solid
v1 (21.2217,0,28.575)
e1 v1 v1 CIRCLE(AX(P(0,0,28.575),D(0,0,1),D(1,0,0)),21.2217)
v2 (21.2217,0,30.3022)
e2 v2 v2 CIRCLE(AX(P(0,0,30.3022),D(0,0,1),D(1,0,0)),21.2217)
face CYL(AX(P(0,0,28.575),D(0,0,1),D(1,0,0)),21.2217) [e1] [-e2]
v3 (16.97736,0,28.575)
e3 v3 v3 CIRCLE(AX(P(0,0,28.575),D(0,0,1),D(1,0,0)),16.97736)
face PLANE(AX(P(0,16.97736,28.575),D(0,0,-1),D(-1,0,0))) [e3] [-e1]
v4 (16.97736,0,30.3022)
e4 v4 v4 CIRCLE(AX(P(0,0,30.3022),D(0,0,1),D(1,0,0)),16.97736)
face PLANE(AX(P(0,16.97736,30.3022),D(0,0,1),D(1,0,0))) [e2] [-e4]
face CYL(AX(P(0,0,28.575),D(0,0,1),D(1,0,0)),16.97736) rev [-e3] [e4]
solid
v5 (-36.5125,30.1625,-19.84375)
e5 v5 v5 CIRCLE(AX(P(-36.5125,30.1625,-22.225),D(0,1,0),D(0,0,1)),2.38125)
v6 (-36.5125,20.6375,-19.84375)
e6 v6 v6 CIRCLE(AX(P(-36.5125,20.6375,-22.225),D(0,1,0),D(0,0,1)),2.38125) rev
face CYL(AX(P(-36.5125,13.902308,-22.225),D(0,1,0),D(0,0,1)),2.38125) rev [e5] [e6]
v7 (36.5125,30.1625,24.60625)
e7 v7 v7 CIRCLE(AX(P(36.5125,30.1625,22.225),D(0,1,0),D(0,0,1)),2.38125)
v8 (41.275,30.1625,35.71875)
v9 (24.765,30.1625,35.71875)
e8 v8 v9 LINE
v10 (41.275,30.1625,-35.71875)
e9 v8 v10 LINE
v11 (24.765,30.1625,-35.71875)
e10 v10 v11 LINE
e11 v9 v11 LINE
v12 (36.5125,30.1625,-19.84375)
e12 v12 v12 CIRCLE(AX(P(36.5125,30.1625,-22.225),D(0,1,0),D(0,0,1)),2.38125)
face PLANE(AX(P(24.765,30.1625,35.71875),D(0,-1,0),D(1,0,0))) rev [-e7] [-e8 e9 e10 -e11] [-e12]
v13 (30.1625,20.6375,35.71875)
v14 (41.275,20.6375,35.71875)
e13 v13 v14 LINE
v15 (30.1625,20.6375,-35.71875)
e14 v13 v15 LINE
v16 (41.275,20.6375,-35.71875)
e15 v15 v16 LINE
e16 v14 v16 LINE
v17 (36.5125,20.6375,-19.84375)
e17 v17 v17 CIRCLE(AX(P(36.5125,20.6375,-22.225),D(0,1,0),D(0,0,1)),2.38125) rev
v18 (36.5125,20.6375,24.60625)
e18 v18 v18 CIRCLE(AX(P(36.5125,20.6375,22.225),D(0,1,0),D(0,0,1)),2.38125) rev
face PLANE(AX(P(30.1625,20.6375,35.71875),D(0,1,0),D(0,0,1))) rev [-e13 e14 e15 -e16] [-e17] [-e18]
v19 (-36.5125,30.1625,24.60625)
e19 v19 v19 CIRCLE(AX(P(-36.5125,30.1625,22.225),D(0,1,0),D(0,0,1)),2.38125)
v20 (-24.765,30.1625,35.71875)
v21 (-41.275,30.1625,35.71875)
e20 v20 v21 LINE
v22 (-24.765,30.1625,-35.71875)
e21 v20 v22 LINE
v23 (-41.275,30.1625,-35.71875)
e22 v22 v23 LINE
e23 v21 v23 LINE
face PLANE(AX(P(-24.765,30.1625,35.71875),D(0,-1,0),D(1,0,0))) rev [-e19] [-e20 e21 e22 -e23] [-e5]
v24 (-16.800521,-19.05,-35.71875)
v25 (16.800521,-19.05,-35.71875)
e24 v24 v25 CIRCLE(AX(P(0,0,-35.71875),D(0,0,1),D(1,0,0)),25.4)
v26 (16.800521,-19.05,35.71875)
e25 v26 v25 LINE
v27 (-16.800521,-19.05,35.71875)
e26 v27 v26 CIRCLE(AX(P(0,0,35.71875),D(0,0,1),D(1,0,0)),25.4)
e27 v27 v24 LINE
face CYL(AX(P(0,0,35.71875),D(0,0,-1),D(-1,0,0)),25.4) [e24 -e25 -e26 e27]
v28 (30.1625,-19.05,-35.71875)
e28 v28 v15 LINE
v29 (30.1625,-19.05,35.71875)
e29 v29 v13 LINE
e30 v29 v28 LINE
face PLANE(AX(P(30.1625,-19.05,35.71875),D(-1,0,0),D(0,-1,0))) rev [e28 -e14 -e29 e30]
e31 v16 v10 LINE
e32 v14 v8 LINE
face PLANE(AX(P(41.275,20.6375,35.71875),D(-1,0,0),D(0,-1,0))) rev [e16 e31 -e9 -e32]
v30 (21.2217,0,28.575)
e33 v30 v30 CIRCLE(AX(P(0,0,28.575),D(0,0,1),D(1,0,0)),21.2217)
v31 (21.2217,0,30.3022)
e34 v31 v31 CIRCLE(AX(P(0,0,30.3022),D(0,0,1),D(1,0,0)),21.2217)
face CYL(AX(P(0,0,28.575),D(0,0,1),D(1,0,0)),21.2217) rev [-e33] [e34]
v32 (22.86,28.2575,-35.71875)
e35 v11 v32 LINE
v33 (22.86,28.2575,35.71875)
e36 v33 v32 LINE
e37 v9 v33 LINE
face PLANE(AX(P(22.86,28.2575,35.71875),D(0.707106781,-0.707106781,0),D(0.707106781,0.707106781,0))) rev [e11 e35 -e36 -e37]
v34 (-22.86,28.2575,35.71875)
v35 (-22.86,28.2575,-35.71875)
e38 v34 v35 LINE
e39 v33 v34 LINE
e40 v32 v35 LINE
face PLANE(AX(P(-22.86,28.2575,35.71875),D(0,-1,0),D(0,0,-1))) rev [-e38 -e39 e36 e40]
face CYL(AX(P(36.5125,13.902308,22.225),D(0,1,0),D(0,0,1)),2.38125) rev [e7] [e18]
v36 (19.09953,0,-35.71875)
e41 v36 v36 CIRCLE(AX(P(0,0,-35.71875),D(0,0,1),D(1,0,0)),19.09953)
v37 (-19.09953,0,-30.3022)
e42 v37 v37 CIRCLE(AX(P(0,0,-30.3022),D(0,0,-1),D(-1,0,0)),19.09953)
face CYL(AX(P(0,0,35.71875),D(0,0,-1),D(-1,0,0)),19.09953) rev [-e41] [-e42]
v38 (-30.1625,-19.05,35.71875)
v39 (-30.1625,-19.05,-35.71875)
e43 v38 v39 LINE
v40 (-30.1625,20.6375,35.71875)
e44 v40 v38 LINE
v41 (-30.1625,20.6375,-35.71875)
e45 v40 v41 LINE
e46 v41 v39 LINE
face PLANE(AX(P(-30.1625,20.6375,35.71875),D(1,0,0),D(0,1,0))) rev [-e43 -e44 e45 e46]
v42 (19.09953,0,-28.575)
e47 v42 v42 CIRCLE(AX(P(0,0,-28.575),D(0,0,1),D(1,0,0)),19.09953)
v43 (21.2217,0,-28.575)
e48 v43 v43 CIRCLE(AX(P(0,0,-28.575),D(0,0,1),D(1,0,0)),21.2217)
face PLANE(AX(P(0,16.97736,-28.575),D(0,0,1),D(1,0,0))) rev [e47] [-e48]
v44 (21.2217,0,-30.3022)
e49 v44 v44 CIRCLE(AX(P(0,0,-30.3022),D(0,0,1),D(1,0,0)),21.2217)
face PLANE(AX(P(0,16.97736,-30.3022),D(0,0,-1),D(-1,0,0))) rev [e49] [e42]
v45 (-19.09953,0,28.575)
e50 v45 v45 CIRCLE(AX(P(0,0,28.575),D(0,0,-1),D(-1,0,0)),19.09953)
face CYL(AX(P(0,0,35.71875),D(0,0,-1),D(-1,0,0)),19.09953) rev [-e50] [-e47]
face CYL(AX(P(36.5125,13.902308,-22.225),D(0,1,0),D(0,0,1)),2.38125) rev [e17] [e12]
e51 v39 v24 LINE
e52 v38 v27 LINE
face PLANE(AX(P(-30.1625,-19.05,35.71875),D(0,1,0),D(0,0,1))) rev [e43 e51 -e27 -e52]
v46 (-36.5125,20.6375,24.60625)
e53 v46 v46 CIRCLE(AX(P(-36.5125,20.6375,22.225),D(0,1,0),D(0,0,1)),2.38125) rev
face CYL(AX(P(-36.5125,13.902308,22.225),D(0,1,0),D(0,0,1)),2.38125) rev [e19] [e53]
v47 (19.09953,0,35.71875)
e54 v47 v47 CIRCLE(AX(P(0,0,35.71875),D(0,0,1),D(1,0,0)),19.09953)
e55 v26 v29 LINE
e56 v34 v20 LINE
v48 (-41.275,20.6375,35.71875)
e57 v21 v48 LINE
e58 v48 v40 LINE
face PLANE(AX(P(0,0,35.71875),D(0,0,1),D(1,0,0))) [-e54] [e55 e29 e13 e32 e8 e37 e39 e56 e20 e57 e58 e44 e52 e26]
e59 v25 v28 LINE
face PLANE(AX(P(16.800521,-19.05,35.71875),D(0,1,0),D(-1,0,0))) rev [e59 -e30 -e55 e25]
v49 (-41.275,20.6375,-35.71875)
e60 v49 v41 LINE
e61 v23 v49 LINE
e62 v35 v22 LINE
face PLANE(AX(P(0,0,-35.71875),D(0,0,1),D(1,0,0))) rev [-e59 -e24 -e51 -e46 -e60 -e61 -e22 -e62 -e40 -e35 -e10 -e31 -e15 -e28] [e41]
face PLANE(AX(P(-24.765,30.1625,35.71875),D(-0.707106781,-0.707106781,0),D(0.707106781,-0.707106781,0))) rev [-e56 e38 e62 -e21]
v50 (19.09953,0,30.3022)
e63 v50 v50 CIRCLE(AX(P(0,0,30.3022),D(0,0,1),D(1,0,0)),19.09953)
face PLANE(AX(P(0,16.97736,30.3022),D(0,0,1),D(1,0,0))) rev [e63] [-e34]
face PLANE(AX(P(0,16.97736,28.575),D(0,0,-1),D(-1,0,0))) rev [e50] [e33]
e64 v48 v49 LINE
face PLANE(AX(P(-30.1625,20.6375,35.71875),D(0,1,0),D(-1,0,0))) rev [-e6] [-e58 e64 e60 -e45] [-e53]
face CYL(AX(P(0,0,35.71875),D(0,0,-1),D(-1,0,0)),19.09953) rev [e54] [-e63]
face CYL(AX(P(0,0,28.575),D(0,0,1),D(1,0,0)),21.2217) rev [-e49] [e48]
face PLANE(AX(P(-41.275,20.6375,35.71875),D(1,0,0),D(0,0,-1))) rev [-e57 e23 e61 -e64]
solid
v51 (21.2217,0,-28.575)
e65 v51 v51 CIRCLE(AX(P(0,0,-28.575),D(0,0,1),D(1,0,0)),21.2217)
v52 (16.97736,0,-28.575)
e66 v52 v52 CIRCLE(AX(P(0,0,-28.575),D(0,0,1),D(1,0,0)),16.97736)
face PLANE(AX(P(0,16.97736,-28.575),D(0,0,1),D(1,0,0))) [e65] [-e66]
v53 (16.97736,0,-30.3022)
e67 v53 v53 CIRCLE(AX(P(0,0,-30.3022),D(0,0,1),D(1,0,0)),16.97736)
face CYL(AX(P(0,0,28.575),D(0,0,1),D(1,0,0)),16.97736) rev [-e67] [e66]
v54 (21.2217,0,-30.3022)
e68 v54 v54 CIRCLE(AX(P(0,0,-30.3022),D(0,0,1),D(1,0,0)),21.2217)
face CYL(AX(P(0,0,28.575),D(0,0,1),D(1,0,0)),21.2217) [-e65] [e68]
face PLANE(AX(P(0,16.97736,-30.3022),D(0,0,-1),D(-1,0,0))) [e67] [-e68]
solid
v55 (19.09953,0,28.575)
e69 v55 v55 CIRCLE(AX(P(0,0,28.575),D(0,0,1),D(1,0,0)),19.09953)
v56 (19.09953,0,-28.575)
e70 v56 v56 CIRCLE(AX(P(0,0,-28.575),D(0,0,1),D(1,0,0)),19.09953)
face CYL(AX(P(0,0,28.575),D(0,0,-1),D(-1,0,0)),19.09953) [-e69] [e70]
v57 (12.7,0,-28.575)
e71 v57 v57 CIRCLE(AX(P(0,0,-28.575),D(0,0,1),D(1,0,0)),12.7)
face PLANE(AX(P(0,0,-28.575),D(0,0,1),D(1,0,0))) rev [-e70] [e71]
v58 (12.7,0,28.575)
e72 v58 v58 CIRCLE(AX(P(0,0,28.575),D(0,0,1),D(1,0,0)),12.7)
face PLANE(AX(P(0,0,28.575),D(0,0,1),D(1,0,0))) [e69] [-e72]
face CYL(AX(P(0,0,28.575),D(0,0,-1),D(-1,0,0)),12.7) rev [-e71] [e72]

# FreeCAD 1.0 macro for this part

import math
import FreeCAD as App
import Part
import Sketcher

V = App.Vector
Q = App.Units.Quantity


def add_polygon(sketch, points):
    """Adds a closed chain of lines whose ends are joined by coincident constraints."""
    first, n = sketch.GeometryCount, len(points)
    for a, b in zip(points, points[1:] + points[:1]):
        sketch.addGeometry(Part.LineSegment(App.Vector(*a, 0), App.Vector(*b, 0)), False)
    for i in range(n):
        sketch.addConstraint(Sketcher.Constraint("Coincident", first + i, 2, first + (i + 1) % n, 1))

doc = App.newDocument("Part")
body = doc.addObject("PartDesign::Body", "Body")

# Sketch on XY plane
sketch1 = doc.addObject("Sketcher::SketchObject", "Sketch")
body.addObject(sketch1)
sketch1.AttachmentSupport = (doc.XY_Plane, [""])
sketch1.MapMode = "FlatFace"
sketch1.addGeometry([
    Part.LineSegment(V(-41.275, 20.6375, 0), V(-30.1625, 20.6375, 0)),  # 0
    Part.LineSegment(V(-30.1625, 20.6375, 0), V(-30.1625, -19.05, 0)),  # 1
    Part.LineSegment(V(-30.1625, -19.05, 0), V(-16.800521, -19.05, 0)),  # 2
    Part.ArcOfCircle(Part.Circle(V(0, 0, 0), V(0, 0, 1), 25.4), math.radians(-131.409622), math.radians(-48.590378)),  # 3
    Part.LineSegment(V(16.800521, -19.05, 0), V(30.1625, -19.05, 0)),  # 4
    Part.LineSegment(V(30.1625, -19.05, 0), V(30.1625, 20.6375, 0)),  # 5
    Part.LineSegment(V(30.1625, 20.6375, 0), V(41.275, 20.6375, 0)),  # 6
    Part.LineSegment(V(41.275, 20.6375, 0), V(41.275, 30.1625, 0)),  # 7
    Part.LineSegment(V(41.275, 30.1625, 0), V(24.765, 30.1625, 0)),  # 8
    Part.LineSegment(V(24.765, 30.1625, 0), V(22.86, 28.2575, 0)),  # 9
    Part.LineSegment(V(22.86, 28.2575, 0), V(-22.86, 28.2575, 0)),  # 10
    Part.LineSegment(V(-22.86, 28.2575, 0), V(-24.765, 30.1625, 0)),  # 11
    Part.LineSegment(V(-24.765, 30.1625, 0), V(-41.275, 30.1625, 0)),  # 12
    Part.LineSegment(V(-41.275, 30.1625, 0), V(-41.275, 20.6375, 0)),  # 13
    Part.Circle(V(0, 0, 0), V(0, 0, 1), 19.09953),  # 14
], False)
sketch1.addConstraint([
    Sketcher.Constraint("Coincident", 0, 2, 1, 1),
    Sketcher.Constraint("Coincident", 1, 2, 2, 1),
    Sketcher.Constraint("Coincident", 2, 2, 3, 1),
    Sketcher.Constraint("Coincident", 3, 2, 4, 1),
    Sketcher.Constraint("Coincident", 4, 2, 5, 1),
    Sketcher.Constraint("Coincident", 5, 2, 6, 1),
    Sketcher.Constraint("Coincident", 6, 2, 7, 1),
    Sketcher.Constraint("Coincident", 7, 2, 8, 1),
    Sketcher.Constraint("Coincident", 8, 2, 9, 1),
    Sketcher.Constraint("Coincident", 9, 2, 10, 1),
    Sketcher.Constraint("Coincident", 10, 2, 11, 1),
    Sketcher.Constraint("Coincident", 11, 2, 12, 1),
    Sketcher.Constraint("Coincident", 12, 2, 13, 1),
    Sketcher.Constraint("Coincident", 13, 2, 0, 1),
    Sketcher.Constraint("Horizontal", 0),
    Sketcher.Constraint("Vertical", 1),
    Sketcher.Constraint("Horizontal", 2),
    Sketcher.Constraint("Horizontal", 4),
    Sketcher.Constraint("Vertical", 5),
    Sketcher.Constraint("Horizontal", 6),
    Sketcher.Constraint("Vertical", 7),
    Sketcher.Constraint("Horizontal", 8),
    Sketcher.Constraint("Horizontal", 10),
    Sketcher.Constraint("Horizontal", 12),
    Sketcher.Constraint("Vertical", 13),
    Sketcher.Constraint("Coincident", 3, 3, -1, 1),
    Sketcher.Constraint("Coincident", 14, 3, -1, 1),
    Sketcher.Constraint("Symmetric", 1, 2, 4, 2, -2),
    Sketcher.Constraint("Symmetric", 8, 2, 11, 2, -2),
    Sketcher.Constraint("Symmetric", 6, 2, 13, 2, -2),
    Sketcher.Constraint("Perpendicular", 9, 11),
    Sketcher.Constraint("Equal", 9, 11),
    Sketcher.Constraint("Radius", 3, Q("1 in")),
    Sketcher.Constraint("DistanceX", 10, 2, 10, 1, Q("1.8 in")),
    Sketcher.Constraint("Diameter", 14, Q("1.5039 in")),
    Sketcher.Constraint("DistanceX", 8, 2, 8, 1, Q("0.65 in")),
    Sketcher.Constraint("DistanceY", 5, 2, 9, 2, Q("0.3 in")),
    Sketcher.Constraint("DistanceX", 0, 1, 0, 2, Q("0.4375 in")),
    Sketcher.Constraint("DistanceY", 1, 2, 1, 1, Q("1.5625 in")),
    Sketcher.Constraint("DistanceY", 7, 1, 7, 2, Q("0.375 in")),
    Sketcher.Constraint("DistanceY", 1, 2, -1, 1, Q("0.75 in")),
])
pad1 = doc.addObject("PartDesign::Pad", "Pad")
body.addObject(pad1)
pad1.Profile = sketch1
pad1.Length = Q("2.8125 in")
pad1.Midplane = True

# Sketch on XZ plane
sketch2 = doc.addObject("Sketcher::SketchObject", "Sketch001")
body.addObject(sketch2)
sketch2.AttachmentSupport = (doc.XZ_Plane, [""])
sketch2.MapMode = "FlatFace"
sketch2.AttachmentOffset = App.Placement(V(0, 0, -1.1875 * 25.4), App.Rotation())
sketch2.addGeometry([
    Part.Circle(V(-36.5125, -22.225, 0), V(0, 0, 1), 2.38125),
    Part.Circle(V(36.5125, -22.225, 0), V(0, 0, 1), 2.38125),
    Part.Circle(V(36.5125, 22.225, 0), V(0, 0, 1), 2.38125),
    Part.Circle(V(-36.5125, 22.225, 0), V(0, 0, 1), 2.38125),
], False)
sketch2.addConstraint([
    Sketcher.Constraint("Equal", 0, 1),
    Sketcher.Constraint("Equal", 1, 2),
    Sketcher.Constraint("Equal", 2, 3),
    Sketcher.Constraint("Symmetric", 0, 3, 2, 3, -1, 1),
    Sketcher.Constraint("Symmetric", 1, 3, 3, 3, -1, 1),
    Sketcher.Constraint("Symmetric", 0, 3, 1, 3, -2),
    Sketcher.Constraint("Diameter", 0, Q("0.1875 in")),
    Sketcher.Constraint("DistanceY", 1, 3, 2, 3, Q("1.75 in")),
    Sketcher.Constraint("DistanceX", 0, 3, -1, 1, Q("1.4375 in")),
])
pocket1 = doc.addObject("PartDesign::Pocket", "Pocket")
body.addObject(pocket1)
pocket1.Profile = sketch2
pocket1.Length = Q("0.375 in")
pocket1.Reversed = True

# Sketch on YZ plane
sketch3 = doc.addObject("Sketcher::SketchObject", "Sketch002")
body.addObject(sketch3)
sketch3.AttachmentSupport = (doc.YZ_Plane, [""])
sketch3.MapMode = "FlatFace"
add_polygon(sketch3, [(-16.97736, -28.575), (-21.2217, -28.575), (-21.2217, -30.3022), (-16.97736, -30.3022)])  # lines 0-3
add_polygon(sketch3, [(-16.97736, 30.3022), (-21.2217, 30.3022), (-21.2217, 28.575), (-16.97736, 28.575)])  # lines 4-7
sketch3.addConstraint([
    Sketcher.Constraint("Horizontal", 0),
    Sketcher.Constraint("Vertical", 1),
    Sketcher.Constraint("Horizontal", 2),
    Sketcher.Constraint("Vertical", 3),
    Sketcher.Constraint("Horizontal", 4),
    Sketcher.Constraint("Vertical", 5),
    Sketcher.Constraint("Horizontal", 6),
    Sketcher.Constraint("Vertical", 7),
    Sketcher.Constraint("Symmetric", 1, 2, 4, 2, -1),
    Sketcher.Constraint("Symmetric", 3, 2, 6, 2, -1),
    Sketcher.Constraint("DistanceY", 1, 2, 1, 1, Q("0.068 in")),
    Sketcher.Constraint("DistanceY", 0, 2, 5, 2, Q("2.25 in")),
    Sketcher.Constraint("DistanceX", 0, 2, 0, 1, Q("0.1671 in")),
    Sketcher.Constraint("DistanceX", 0, 2, -1, 1, Q("0.8355 in")),
])
groove = doc.addObject("PartDesign::Groove", "Groove")
body.addObject(groove)
groove.Profile = sketch3
groove.ReferenceAxis = (sketch3, ["V_Axis"])
groove.Angle = 360
body2 = doc.addObject("PartDesign::Body", "Body001")

# Sketch on XY plane
sketch4 = doc.addObject("Sketcher::SketchObject", "Sketch003")
body2.addObject(sketch4)
sketch4.AttachmentSupport = (doc.getObject("XY_Plane001"), [""])
sketch4.MapMode = "FlatFace"
sketch4.addGeometry([
    Part.Circle(V(0, 0, 0), V(0, 0, 1), 19.09953),
    Part.Circle(V(0, 0, 0), V(0, 0, 1), 12.7),
], False)
sketch4.addConstraint([
    Sketcher.Constraint("Coincident", 0, 3, -1, 1),
    Sketcher.Constraint("Coincident", 1, 3, -1, 1),
    Sketcher.Constraint("Diameter", 1, Q("1 in")),
    Sketcher.Constraint("Diameter", 0, Q("1.5039 in")),
])
pad2 = doc.addObject("PartDesign::Pad", "Pad001")
body2.addObject(pad2)
pad2.Profile = sketch4
pad2.Length = Q("2.25 in")
pad2.Midplane = True
body3 = doc.addObject("PartDesign::Body", "Body002")
body3.AllowCompound = True

# Sketch on YZ plane
sketch5 = doc.addObject("Sketcher::SketchObject", "Sketch004")
body3.addObject(sketch5)
sketch5.AttachmentSupport = (doc.getObject("YZ_Plane002"), [""])
sketch5.MapMode = "FlatFace"
add_polygon(sketch5, [(-16.97736, -28.575), (-21.2217, -28.575), (-21.2217, -30.3022), (-16.97736, -30.3022)])  # lines 0-3
add_polygon(sketch5, [(-16.97736, 30.3022), (-21.2217, 30.3022), (-21.2217, 28.575), (-16.97736, 28.575)])  # lines 4-7
sketch5.addConstraint([
    Sketcher.Constraint("Horizontal", 0),
    Sketcher.Constraint("Vertical", 1),
    Sketcher.Constraint("Horizontal", 2),
    Sketcher.Constraint("Vertical", 3),
    Sketcher.Constraint("Horizontal", 4),
    Sketcher.Constraint("Vertical", 5),
    Sketcher.Constraint("Horizontal", 6),
    Sketcher.Constraint("Vertical", 7),
    Sketcher.Constraint("Symmetric", 1, 2, 4, 2, -1),
    Sketcher.Constraint("Symmetric", 3, 2, 6, 2, -1),
    Sketcher.Constraint("DistanceY", 1, 2, 1, 1, Q("0.068 in")),
    Sketcher.Constraint("DistanceY", 0, 2, 5, 2, Q("2.25 in")),
    Sketcher.Constraint("DistanceX", 0, 2, 0, 1, Q("0.1671 in")),
    Sketcher.Constraint("DistanceX", 0, 2, -1, 1, Q("0.8355 in")),
])
revolution = doc.addObject("PartDesign::Revolution", "Revolution")
body3.addObject(revolution)
revolution.Profile = sketch5
revolution.ReferenceAxis = (sketch5, ["V_Axis"])
revolution.Angle = 360

doc.recompute()
